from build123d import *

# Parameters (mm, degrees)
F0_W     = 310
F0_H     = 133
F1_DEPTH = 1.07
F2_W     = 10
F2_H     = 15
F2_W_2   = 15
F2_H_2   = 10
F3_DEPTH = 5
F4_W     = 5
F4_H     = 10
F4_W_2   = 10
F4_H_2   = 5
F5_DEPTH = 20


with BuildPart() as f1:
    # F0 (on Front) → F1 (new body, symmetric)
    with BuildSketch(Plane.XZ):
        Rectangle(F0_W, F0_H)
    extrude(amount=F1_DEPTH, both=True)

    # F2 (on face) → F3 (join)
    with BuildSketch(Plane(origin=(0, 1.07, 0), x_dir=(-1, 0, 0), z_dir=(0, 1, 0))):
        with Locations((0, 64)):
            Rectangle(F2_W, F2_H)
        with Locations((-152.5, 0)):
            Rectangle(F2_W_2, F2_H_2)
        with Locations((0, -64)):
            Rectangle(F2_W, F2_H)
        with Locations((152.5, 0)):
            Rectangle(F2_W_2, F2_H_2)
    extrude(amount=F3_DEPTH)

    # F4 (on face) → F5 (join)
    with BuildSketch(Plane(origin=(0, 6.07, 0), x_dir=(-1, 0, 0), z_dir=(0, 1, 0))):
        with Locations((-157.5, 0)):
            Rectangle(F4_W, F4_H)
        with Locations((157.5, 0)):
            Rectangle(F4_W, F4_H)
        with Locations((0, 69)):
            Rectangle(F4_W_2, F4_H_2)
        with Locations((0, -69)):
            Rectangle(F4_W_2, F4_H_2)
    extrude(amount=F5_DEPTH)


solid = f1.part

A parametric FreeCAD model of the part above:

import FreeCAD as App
import Part
import Sketcher

V = App.Vector

doc = App.newDocument("Part")
body = doc.addObject("PartDesign::Body", "Body")

# Sketch on XZ plane
sketch1 = body.newObject("Sketcher::SketchObject", "Sketch")
sketch1.AttachmentSupport = (doc.getObject("XZ_Plane"), [""])
sketch1.MapMode = "FlatFace"
sketch1.addGeometry(Part.LineSegment(V(-155, 66, 0), V(-155, -66, 0)), False)
sketch1.addGeometry(Part.LineSegment(V(-155, -66, 0), V(155, -66, 0)), False)
sketch1.addGeometry(Part.LineSegment(V(155, -66, 0), V(155, 66, 0)), False)
sketch1.addGeometry(Part.LineSegment(V(155, 66, 0), V(-155, 66, 0)), False)
sketch1.addConstraint(Sketcher.Constraint("Coincident", 0, 2, 1, 1))
sketch1.addConstraint(Sketcher.Constraint("Coincident", 1, 2, 2, 1))
sketch1.addConstraint(Sketcher.Constraint("Coincident", 2, 2, 3, 1))
sketch1.addConstraint(Sketcher.Constraint("Coincident", 3, 2, 0, 1))
sketch1.addConstraint(Sketcher.Constraint("Vertical", 0))
sketch1.addConstraint(Sketcher.Constraint("Horizontal", 1))
sketch1.addConstraint(Sketcher.Constraint("Vertical", 2))
sketch1.addConstraint(Sketcher.Constraint("Horizontal", 3))
sketch1.addConstraint(Sketcher.Constraint("Symmetric", 0, 2, 2, 2, -1, 1))
sketch1.addConstraint(Sketcher.Constraint("DistanceX", 1, 1, 1, 2, 310.0))
sketch1.addConstraint(Sketcher.Constraint("DistanceY", 0, 2, 0, 1, 133.0))
pad1 = body.newObject("PartDesign::Pad", "Pad")
pad1.Profile = sketch1
pad1.Length = 2.14
pad1.Midplane = True

# Sketch on XZ plane
sketch2 = body.newObject("Sketcher::SketchObject", "Sketch001")
sketch2.AttachmentSupport = (doc.getObject("XZ_Plane"), [""])
sketch2.MapMode = "FlatFace"
sketch2.AttachmentOffset = App.Placement(V(0, 0, -1.07), App.Rotation())
sketch2.addGeometry(Part.LineSegment(V(5, 72, 0), V(5, 56, 0)), False)
sketch2.addGeometry(Part.LineSegment(V(5, 56, 0), V(-5, 56, 0)), False)
sketch2.addGeometry(Part.LineSegment(V(-5, 56, 0), V(-5, 72, 0)), False)
sketch2.addGeometry(Part.LineSegment(V(-5, 72, 0), V(5, 72, 0)), False)
sketch2.addGeometry(Part.LineSegment(V(160, 5, 0), V(160, -5, 0)), False)
sketch2.addGeometry(Part.LineSegment(V(160, -5, 0), V(145, -5, 0)), False)
sketch2.addGeometry(Part.LineSegment(V(145, -5, 0), V(145, 5, 0)), False)
sketch2.addGeometry(Part.LineSegment(V(145, 5, 0), V(160, 5, 0)), False)
sketch2.addGeometry(Part.LineSegment(V(5, -56, 0), V(5, -72, 0)), False)
sketch2.addGeometry(Part.LineSegment(V(5, -72, 0), V(-5, -72, 0)), False)
sketch2.addGeometry(Part.LineSegment(V(-5, -72, 0), V(-5, -56, 0)), False)
sketch2.addGeometry(Part.LineSegment(V(-5, -56, 0), V(5, -56, 0)), False)
sketch2.addGeometry(Part.LineSegment(V(-145, 5, 0), V(-145, -5, 0)), False)
sketch2.addGeometry(Part.LineSegment(V(-145, -5, 0), V(-160, -5, 0)), False)
sketch2.addGeometry(Part.LineSegment(V(-160, -5, 0), V(-160, 5, 0)), False)
sketch2.addGeometry(Part.LineSegment(V(-160, 5, 0), V(-145, 5, 0)), False)
sketch2.addConstraint(Sketcher.Constraint("Coincident", 0, 2, 1, 1))
sketch2.addConstraint(Sketcher.Constraint("Coincident", 1, 2, 2, 1))
sketch2.addConstraint(Sketcher.Constraint("Coincident", 2, 2, 3, 1))
sketch2.addConstraint(Sketcher.Constraint("Coincident", 3, 2, 0, 1))
sketch2.addConstraint(Sketcher.Constraint("Coincident", 4, 2, 5, 1))
sketch2.addConstraint(Sketcher.Constraint("Coincident", 5, 2, 6, 1))
sketch2.addConstraint(Sketcher.Constraint("Coincident", 6, 2, 7, 1))
sketch2.addConstraint(Sketcher.Constraint("Coincident", 7, 2, 4, 1))
sketch2.addConstraint(Sketcher.Constraint("Coincident", 8, 2, 9, 1))
sketch2.addConstraint(Sketcher.Constraint("Coincident", 9, 2, 10, 1))
sketch2.addConstraint(Sketcher.Constraint("Coincident", 10, 2, 11, 1))
sketch2.addConstraint(Sketcher.Constraint("Coincident", 11, 2, 8, 1))
sketch2.addConstraint(Sketcher.Constraint("Coincident", 12, 2, 13, 1))
sketch2.addConstraint(Sketcher.Constraint("Coincident", 13, 2, 14, 1))
sketch2.addConstraint(Sketcher.Constraint("Coincident", 14, 2, 15, 1))
sketch2.addConstraint(Sketcher.Constraint("Coincident", 15, 2, 12, 1))
sketch2.addConstraint(Sketcher.Constraint("Vertical", 0))
sketch2.addConstraint(Sketcher.Constraint("Horizontal", 1))
sketch2.addConstraint(Sketcher.Constraint("Vertical", 2))
sketch2.addConstraint(Sketcher.Constraint("Horizontal", 3))
sketch2.addConstraint(Sketcher.Constraint("Vertical", 4))
sketch2.addConstraint(Sketcher.Constraint("Horizontal", 5))
sketch2.addConstraint(Sketcher.Constraint("Vertical", 6))
sketch2.addConstraint(Sketcher.Constraint("Horizontal", 7))
sketch2.addConstraint(Sketcher.Constraint("Vertical", 8))
sketch2.addConstraint(Sketcher.Constraint("Horizontal", 9))
sketch2.addConstraint(Sketcher.Constraint("Vertical", 10))
sketch2.addConstraint(Sketcher.Constraint("Horizontal", 11))
sketch2.addConstraint(Sketcher.Constraint("Vertical", 12))
sketch2.addConstraint(Sketcher.Constraint("Horizontal", 13))
sketch2.addConstraint(Sketcher.Constraint("Vertical", 14))
sketch2.addConstraint(Sketcher.Constraint("Horizontal", 15))
sketch2.addConstraint(Sketcher.Constraint("Symmetric", 2, 2, 8, 2, -1, 1))
sketch2.addConstraint(Sketcher.Constraint("Symmetric", 0, 2, 10, 2, -1, 1))
sketch2.addConstraint(Sketcher.Constraint("Symmetric", 6, 2, 12, 2, -1, 1))
sketch2.addConstraint(Sketcher.Constraint("Symmetric", 4, 2, 14, 2, -1, 1))
sketch2.addConstraint(Sketcher.Constraint("Horizontal", 5, 2, 12, 2))
sketch2.addConstraint(Sketcher.Constraint("Vertical", 3, 2, 8, 2))
sketch2.addConstraint(Sketcher.Constraint("Equal", 15, 0))
sketch2.addConstraint(Sketcher.Constraint("Equal", 11, 4))
sketch2.addConstraint(Sketcher.Constraint("DistanceX", 1, 2, 1, 1, 10.0))
sketch2.addConstraint(Sketcher.Constraint("DistanceX", 5, 2, 5, 1, 15.0))
sketch2.addConstraint(Sketcher.Constraint("DistanceX", -1, 1, 4, 2, 160.0))
sketch2.addConstraint(Sketcher.Constraint("DistanceY", 8, 2, 0, 2, 128.0))
pad2 = body.newObject("PartDesign::Pad", "Pad001")
pad2.Profile = sketch2
pad2.Length = 5
pad2.Reversed = True

# Sketch on XZ plane
sketch3 = body.newObject("Sketcher::SketchObject", "Sketch002")
sketch3.AttachmentSupport = (doc.getObject("XZ_Plane"), [""])
sketch3.MapMode = "FlatFace"
sketch3.AttachmentOffset = App.Placement(V(0, 0, -6.07), App.Rotation())
sketch3.addGeometry(Part.LineSegment(V(160, 5, 0), V(160, -5, 0)), False)
sketch3.addGeometry(Part.LineSegment(V(160, -5, 0), V(155, -5, 0)), False)
sketch3.addGeometry(Part.LineSegment(V(155, -5, 0), V(155, 5, 0)), False)
sketch3.addGeometry(Part.LineSegment(V(155, 5, 0), V(160, 5, 0)), False)
sketch3.addGeometry(Part.LineSegment(V(-155, 5, 0), V(-155, -5, 0)), False)
sketch3.addGeometry(Part.LineSegment(V(-155, -5, 0), V(-160, -5, 0)), False)
sketch3.addGeometry(Part.LineSegment(V(-160, -5, 0), V(-160, 5, 0)), False)
sketch3.addGeometry(Part.LineSegment(V(-160, 5, 0), V(-155, 5, 0)), False)
sketch3.addGeometry(Part.LineSegment(V(5, 72, 0), V(5, 66, 0)), False)
sketch3.addGeometry(Part.LineSegment(V(5, 66, 0), V(-5, 66, 0)), False)
sketch3.addGeometry(Part.LineSegment(V(-5, 66, 0), V(-5, 72, 0)), False)
sketch3.addGeometry(Part.LineSegment(V(-5, 72, 0), V(5, 72, 0)), False)
sketch3.addGeometry(Part.LineSegment(V(5, -66, 0), V(5, -72, 0)), False)
sketch3.addGeometry(Part.LineSegment(V(5, -72, 0), V(-5, -72, 0)), False)
sketch3.addGeometry(Part.LineSegment(V(-5, -72, 0), V(-5, -66, 0)), False)
sketch3.addGeometry(Part.LineSegment(V(-5, -66, 0), V(5, -66, 0)), False)
sketch3.addConstraint(Sketcher.Constraint("Coincident", 0, 2, 1, 1))
sketch3.addConstraint(Sketcher.Constraint("Coincident", 1, 2, 2, 1))
sketch3.addConstraint(Sketcher.Constraint("Coincident", 2, 2, 3, 1))
sketch3.addConstraint(Sketcher.Constraint("Coincident", 3, 2, 0, 1))
sketch3.addConstraint(Sketcher.Constraint("Coincident", 4, 2, 5, 1))
sketch3.addConstraint(Sketcher.Constraint("Coincident", 5, 2, 6, 1))
sketch3.addConstraint(Sketcher.Constraint("Coincident", 6, 2, 7, 1))
sketch3.addConstraint(Sketcher.Constraint("Coincident", 7, 2, 4, 1))
sketch3.addConstraint(Sketcher.Constraint("Coincident", 8, 2, 9, 1))
sketch3.addConstraint(Sketcher.Constraint("Coincident", 9, 2, 10, 1))
sketch3.addConstraint(Sketcher.Constraint("Coincident", 10, 2, 11, 1))
sketch3.addConstraint(Sketcher.Constraint("Coincident", 11, 2, 8, 1))
sketch3.addConstraint(Sketcher.Constraint("Coincident", 12, 2, 13, 1))
sketch3.addConstraint(Sketcher.Constraint("Coincident", 13, 2, 14, 1))
sketch3.addConstraint(Sketcher.Constraint("Coincident", 14, 2, 15, 1))
sketch3.addConstraint(Sketcher.Constraint("Coincident", 15, 2, 12, 1))
sketch3.addConstraint(Sketcher.Constraint("Vertical", 0))
sketch3.addConstraint(Sketcher.Constraint("Horizontal", 1))
sketch3.addConstraint(Sketcher.Constraint("Vertical", 2))
sketch3.addConstraint(Sketcher.Constraint("Horizontal", 3))
sketch3.addConstraint(Sketcher.Constraint("Vertical", 4))
sketch3.addConstraint(Sketcher.Constraint("Horizontal", 5))
sketch3.addConstraint(Sketcher.Constraint("Vertical", 6))
sketch3.addConstraint(Sketcher.Constraint("Horizontal", 7))
sketch3.addConstraint(Sketcher.Constraint("Vertical", 8))
sketch3.addConstraint(Sketcher.Constraint("Horizontal", 9))
sketch3.addConstraint(Sketcher.Constraint("Vertical", 10))
sketch3.addConstraint(Sketcher.Constraint("Horizontal", 11))
sketch3.addConstraint(Sketcher.Constraint("Vertical", 12))
sketch3.addConstraint(Sketcher.Constraint("Horizontal", 13))
sketch3.addConstraint(Sketcher.Constraint("Vertical", 14))
sketch3.addConstraint(Sketcher.Constraint("Horizontal", 15))
sketch3.addConstraint(Sketcher.Constraint("Symmetric", 2, 2, 4, 2, -1, 1))
sketch3.addConstraint(Sketcher.Constraint("Symmetric", 0, 2, 6, 2, -1, 1))
sketch3.addConstraint(Sketcher.Constraint("Symmetric", 10, 2, 12, 2, -1, 1))
sketch3.addConstraint(Sketcher.Constraint("Symmetric", 8, 2, 14, 2, -1, 1))
sketch3.addConstraint(Sketcher.Constraint("Horizontal", 1, 2, 4, 2))
sketch3.addConstraint(Sketcher.Constraint("Vertical", 11, 2, 12, 2))
sketch3.addConstraint(Sketcher.Constraint("Equal", 15, 0))
sketch3.addConstraint(Sketcher.Constraint("Equal", 7, 8))
sketch3.addConstraint(Sketcher.Constraint("DistanceX", 1, 2, 1, 1, 5.0))
sketch3.addConstraint(Sketcher.Constraint("DistanceX", 9, 2, 9, 1, 10.0))
sketch3.addConstraint(Sketcher.Constraint("DistanceX", -1, 1, 0, 2, 160.0))
sketch3.addConstraint(Sketcher.Constraint("DistanceY", 12, 2, 8, 2, 138.0))
pad3 = body.newObject("PartDesign::Pad", "Pad002")
pad3.Profile = sketch3
pad3.Length = 20
pad3.Reversed = True

doc.recompute()
